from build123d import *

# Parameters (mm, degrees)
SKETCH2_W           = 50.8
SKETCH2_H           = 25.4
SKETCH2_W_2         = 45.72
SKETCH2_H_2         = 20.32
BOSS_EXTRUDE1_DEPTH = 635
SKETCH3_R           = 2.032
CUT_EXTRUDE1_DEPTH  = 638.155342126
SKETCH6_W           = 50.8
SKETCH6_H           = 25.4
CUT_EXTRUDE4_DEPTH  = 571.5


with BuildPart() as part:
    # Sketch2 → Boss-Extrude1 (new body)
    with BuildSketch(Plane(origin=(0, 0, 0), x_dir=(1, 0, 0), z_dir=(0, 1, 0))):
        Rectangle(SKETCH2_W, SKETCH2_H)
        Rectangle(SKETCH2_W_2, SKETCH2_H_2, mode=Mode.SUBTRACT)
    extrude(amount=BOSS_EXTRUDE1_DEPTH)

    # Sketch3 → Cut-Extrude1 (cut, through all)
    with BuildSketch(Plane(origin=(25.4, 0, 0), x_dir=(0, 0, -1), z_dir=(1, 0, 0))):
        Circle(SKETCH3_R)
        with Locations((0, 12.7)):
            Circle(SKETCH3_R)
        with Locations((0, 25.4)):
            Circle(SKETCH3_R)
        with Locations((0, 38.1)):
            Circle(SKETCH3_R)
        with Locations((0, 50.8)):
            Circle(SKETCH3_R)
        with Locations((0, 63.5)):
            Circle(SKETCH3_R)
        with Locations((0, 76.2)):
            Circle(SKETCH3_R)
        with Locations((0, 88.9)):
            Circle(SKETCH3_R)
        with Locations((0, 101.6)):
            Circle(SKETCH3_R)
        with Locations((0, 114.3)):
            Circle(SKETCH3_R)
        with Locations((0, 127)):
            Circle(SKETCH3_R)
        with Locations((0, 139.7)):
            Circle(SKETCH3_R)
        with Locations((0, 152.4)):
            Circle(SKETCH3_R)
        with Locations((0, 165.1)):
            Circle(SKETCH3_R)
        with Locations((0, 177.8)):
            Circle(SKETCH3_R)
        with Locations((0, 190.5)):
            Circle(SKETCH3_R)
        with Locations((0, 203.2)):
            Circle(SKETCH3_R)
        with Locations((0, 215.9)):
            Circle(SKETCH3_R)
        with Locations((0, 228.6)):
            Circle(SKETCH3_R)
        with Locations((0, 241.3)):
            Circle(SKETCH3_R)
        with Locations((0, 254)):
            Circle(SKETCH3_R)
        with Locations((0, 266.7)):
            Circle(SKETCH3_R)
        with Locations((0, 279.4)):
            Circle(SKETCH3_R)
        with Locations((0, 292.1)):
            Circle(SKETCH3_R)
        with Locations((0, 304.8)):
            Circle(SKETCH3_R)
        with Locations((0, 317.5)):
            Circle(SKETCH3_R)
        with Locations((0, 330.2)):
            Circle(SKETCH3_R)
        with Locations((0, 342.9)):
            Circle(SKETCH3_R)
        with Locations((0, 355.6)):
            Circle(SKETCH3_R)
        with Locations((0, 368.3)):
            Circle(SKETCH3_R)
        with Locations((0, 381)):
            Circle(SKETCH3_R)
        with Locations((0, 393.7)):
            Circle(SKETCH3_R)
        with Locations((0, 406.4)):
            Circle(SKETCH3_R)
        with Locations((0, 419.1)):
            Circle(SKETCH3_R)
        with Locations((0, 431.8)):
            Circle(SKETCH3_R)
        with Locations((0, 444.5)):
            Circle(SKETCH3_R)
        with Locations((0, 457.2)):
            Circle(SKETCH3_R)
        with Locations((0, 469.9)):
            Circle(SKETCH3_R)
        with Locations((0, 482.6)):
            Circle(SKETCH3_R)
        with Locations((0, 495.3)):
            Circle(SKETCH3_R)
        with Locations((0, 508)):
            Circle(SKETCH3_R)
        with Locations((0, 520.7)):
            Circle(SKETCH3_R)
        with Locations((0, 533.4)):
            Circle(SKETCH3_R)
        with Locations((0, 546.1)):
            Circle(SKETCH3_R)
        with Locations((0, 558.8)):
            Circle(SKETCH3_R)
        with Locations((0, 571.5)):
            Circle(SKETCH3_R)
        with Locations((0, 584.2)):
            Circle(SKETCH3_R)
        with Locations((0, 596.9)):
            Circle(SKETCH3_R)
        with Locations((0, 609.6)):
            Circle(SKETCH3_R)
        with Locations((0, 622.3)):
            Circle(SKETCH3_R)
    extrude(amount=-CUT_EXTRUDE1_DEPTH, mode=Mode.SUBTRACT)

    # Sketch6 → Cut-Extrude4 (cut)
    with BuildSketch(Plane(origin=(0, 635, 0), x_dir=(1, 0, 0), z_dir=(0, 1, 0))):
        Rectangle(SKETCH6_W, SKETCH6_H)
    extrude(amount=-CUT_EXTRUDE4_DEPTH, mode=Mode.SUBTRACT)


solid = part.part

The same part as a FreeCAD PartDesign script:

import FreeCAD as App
import Part
import Sketcher

V = App.Vector
Q = App.Units.Quantity


def add_polygon(sketch, points):
    """Adds a closed chain of lines whose ends are joined by coincident constraints."""
    first, n = sketch.GeometryCount, len(points)
    for a, b in zip(points, points[1:] + points[:1]):
        sketch.addGeometry(Part.LineSegment(App.Vector(*a, 0), App.Vector(*b, 0)), False)
    for i in range(n):
        sketch.addConstraint(Sketcher.Constraint("Coincident", first + i, 2, first + (i + 1) % n, 1))

doc = App.newDocument("Part")
body = doc.addObject("PartDesign::Body", "Body")

sketch1 = body.newObject("Sketcher::SketchObject", "Sketch")
sketch1.AttachmentSupport = (doc.getObject("XZ_Plane"), [""])
sketch1.MapMode = "FlatFace"
add_polygon(sketch1, [(-25, -13), (-25, 13), (25, 13), (25, -13)])
add_polygon(sketch1, [(23, 10), (-23, 10), (-23, -10), (23, -10)])
sketch1.addConstraint([
    Sketcher.Constraint("Vertical", 0),
    Sketcher.Constraint("Horizontal", 1),
    Sketcher.Constraint("Vertical", 2),
    Sketcher.Constraint("Horizontal", 3),
    Sketcher.Constraint("Horizontal", 4),
    Sketcher.Constraint("Vertical", 5),
    Sketcher.Constraint("Horizontal", 6),
    Sketcher.Constraint("Vertical", 7),
    Sketcher.Constraint("Symmetric", 0, 2, 2, 2, -1, 1),
    Sketcher.Constraint("Symmetric", 4, 2, 6, 2, -1, 1),
    Sketcher.Constraint("DistanceX", 1, 1, 1, 2, Q("2 in")),
    Sketcher.Constraint("DistanceY", 0, 1, 0, 2, Q("1 in")),
    Sketcher.Constraint("DistanceX", 4, 2, 4, 1, Q("1.8 in")),
    Sketcher.Constraint("DistanceY", 5, 2, 5, 1, Q("0.8 in")),
])
pad1 = body.newObject("PartDesign::Pad", "Pad")
pad1.Profile = sketch1
pad1.Length = Q("25 in")
pad1.Reversed = True

sketch2 = body.newObject("Sketcher::SketchObject", "Sketch001")
sketch2.AttachmentSupport = (doc.getObject("YZ_Plane"), [""])
sketch2.MapMode = "FlatFace"
sketch2.AttachmentOffset = App.Placement(V(0, 0, 1 * 25.4), App.Rotation())
sketch2.addGeometry([
    Part.Circle(V(0, 0, 0), V(0, 0, 1), 2),
    Part.Circle(V(12.7, 0, 0), V(0, 0, 1), 2),
    Part.Circle(V(25.4, 0, 0), V(0, 0, 1), 2),
    Part.Circle(V(38.1, 0, 0), V(0, 0, 1), 2),
    Part.Circle(V(50.8, 0, 0), V(0, 0, 1), 2),
    Part.Circle(V(63.5, 0, 0), V(0, 0, 1), 2),
    Part.Circle(V(76.2, 0, 0), V(0, 0, 1), 2),
    Part.Circle(V(88.9, 0, 0), V(0, 0, 1), 2),
    Part.Circle(V(101.6, 0, 0), V(0, 0, 1), 2),
    Part.Circle(V(114.3, 0, 0), V(0, 0, 1), 2),
    Part.Circle(V(127, 0, 0), V(0, 0, 1), 2),
    Part.Circle(V(139.7, 0, 0), V(0, 0, 1), 2),
    Part.Circle(V(152.4, 0, 0), V(0, 0, 1), 2),
    Part.Circle(V(165.1, 0, 0), V(0, 0, 1), 2),
    Part.Circle(V(177.8, 0, 0), V(0, 0, 1), 2),
    Part.Circle(V(190.5, 0, 0), V(0, 0, 1), 2),
    Part.Circle(V(203.2, 0, 0), V(0, 0, 1), 2),
    Part.Circle(V(215.9, 0, 0), V(0, 0, 1), 2),
    Part.Circle(V(228.6, 0, 0), V(0, 0, 1), 2),
    Part.Circle(V(241.3, 0, 0), V(0, 0, 1), 2),
    Part.Circle(V(254, 0, 0), V(0, 0, 1), 2),
    Part.Circle(V(266.7, 0, 0), V(0, 0, 1), 2),
    Part.Circle(V(279.4, 0, 0), V(0, 0, 1), 2),
    Part.Circle(V(292.1, 0, 0), V(0, 0, 1), 2),
    Part.Circle(V(304.8, 0, 0), V(0, 0, 1), 2),
    Part.Circle(V(317.5, 0, 0), V(0, 0, 1), 2),
    Part.Circle(V(330.2, 0, 0), V(0, 0, 1), 2),
    Part.Circle(V(342.9, 0, 0), V(0, 0, 1), 2),
    Part.Circle(V(355.6, 0, 0), V(0, 0, 1), 2),
    Part.Circle(V(368.3, 0, 0), V(0, 0, 1), 2),
    Part.Circle(V(381, 0, 0), V(0, 0, 1), 2),
    Part.Circle(V(393.7, 0, 0), V(0, 0, 1), 2),
    Part.Circle(V(406.4, 0, 0), V(0, 0, 1), 2),
    Part.Circle(V(419.1, 0, 0), V(0, 0, 1), 2),
    Part.Circle(V(431.8, 0, 0), V(0, 0, 1), 2),
    Part.Circle(V(444.5, 0, 0), V(0, 0, 1), 2),
    Part.Circle(V(457.2, 0, 0), V(0, 0, 1), 2),
    Part.Circle(V(469.9, 0, 0), V(0, 0, 1), 2),
    Part.Circle(V(482.6, 0, 0), V(0, 0, 1), 2),
    Part.Circle(V(495.3, 0, 0), V(0, 0, 1), 2),
    Part.Circle(V(508, 0, 0), V(0, 0, 1), 2),
    Part.Circle(V(520.7, 0, 0), V(0, 0, 1), 2),
    Part.Circle(V(533.4, 0, 0), V(0, 0, 1), 2),
    Part.Circle(V(546.1, 0, 0), V(0, 0, 1), 2),
    Part.Circle(V(558.8, 0, 0), V(0, 0, 1), 2),
    Part.Circle(V(571.5, 0, 0), V(0, 0, 1), 2),
    Part.Circle(V(584.2, 0, 0), V(0, 0, 1), 2),
    Part.Circle(V(596.9, 0, 0), V(0, 0, 1), 2),
    Part.Circle(V(609.6, 0, 0), V(0, 0, 1), 2),
    Part.Circle(V(622.3, 0, 0), V(0, 0, 1), 2),
], False)
sketch2.addConstraint([
    Sketcher.Constraint("Coincident", 0, 3, -1, 1),
    Sketcher.Constraint("Equal", 0, 1),
    Sketcher.Constraint("Equal", 1, 2),
    Sketcher.Constraint("Equal", 2, 3),
    Sketcher.Constraint("Equal", 3, 4),
    Sketcher.Constraint("Equal", 4, 5),
    Sketcher.Constraint("Equal", 5, 6),
    Sketcher.Constraint("Equal", 6, 7),
    Sketcher.Constraint("Equal", 7, 8),
    Sketcher.Constraint("Equal", 8, 9),
    Sketcher.Constraint("Equal", 9, 10),
    Sketcher.Constraint("Equal", 10, 11),
    Sketcher.Constraint("Equal", 11, 12),
    Sketcher.Constraint("Equal", 12, 13),
    Sketcher.Constraint("Equal", 13, 14),
    Sketcher.Constraint("Equal", 14, 15),
    Sketcher.Constraint("Equal", 15, 16),
    Sketcher.Constraint("Equal", 16, 17),
    Sketcher.Constraint("Equal", 17, 18),
    Sketcher.Constraint("Equal", 18, 19),
    Sketcher.Constraint("Equal", 19, 20),
    Sketcher.Constraint("Equal", 20, 21),
    Sketcher.Constraint("Equal", 21, 22),
    Sketcher.Constraint("Equal", 22, 23),
    Sketcher.Constraint("Equal", 23, 24),
    Sketcher.Constraint("Equal", 24, 25),
    Sketcher.Constraint("Equal", 25, 26),
    Sketcher.Constraint("Equal", 26, 27),
    Sketcher.Constraint("Equal", 27, 28),
    Sketcher.Constraint("Equal", 28, 29),
    Sketcher.Constraint("Equal", 29, 30),
    Sketcher.Constraint("Equal", 30, 31),
    Sketcher.Constraint("Equal", 31, 32),
    Sketcher.Constraint("Equal", 32, 33),
    Sketcher.Constraint("Equal", 33, 34),
    Sketcher.Constraint("Equal", 34, 35),
    Sketcher.Constraint("Equal", 35, 36),
    Sketcher.Constraint("Equal", 36, 37),
    Sketcher.Constraint("Equal", 37, 38),
    Sketcher.Constraint("Equal", 38, 39),
    Sketcher.Constraint("Equal", 39, 40),
    Sketcher.Constraint("Equal", 40, 41),
    Sketcher.Constraint("Equal", 41, 42),
    Sketcher.Constraint("Equal", 42, 43),
    Sketcher.Constraint("Equal", 43, 44),
    Sketcher.Constraint("Equal", 44, 45),
    Sketcher.Constraint("Equal", 45, 46),
    Sketcher.Constraint("Equal", 46, 47),
    Sketcher.Constraint("Equal", 47, 48),
    Sketcher.Constraint("Equal", 48, 49),
    Sketcher.Constraint("PointOnObject", 1, 3, -1),
    Sketcher.Constraint("PointOnObject", 2, 3, -1),
    Sketcher.Constraint("PointOnObject", 3, 3, -1),
    Sketcher.Constraint("PointOnObject", 4, 3, -1),
    Sketcher.Constraint("PointOnObject", 5, 3, -1),
    Sketcher.Constraint("PointOnObject", 6, 3, -1),
    Sketcher.Constraint("PointOnObject", 7, 3, -1),
    Sketcher.Constraint("PointOnObject", 8, 3, -1),
    Sketcher.Constraint("PointOnObject", 9, 3, -1),
    Sketcher.Constraint("PointOnObject", 10, 3, -1),
    Sketcher.Constraint("PointOnObject", 11, 3, -1),
    Sketcher.Constraint("PointOnObject", 12, 3, -1),
    Sketcher.Constraint("PointOnObject", 13, 3, -1),
    Sketcher.Constraint("PointOnObject", 14, 3, -1),
    Sketcher.Constraint("PointOnObject", 15, 3, -1),
    Sketcher.Constraint("PointOnObject", 16, 3, -1),
    Sketcher.Constraint("PointOnObject", 17, 3, -1),
    Sketcher.Constraint("PointOnObject", 18, 3, -1),
    Sketcher.Constraint("PointOnObject", 19, 3, -1),
    Sketcher.Constraint("PointOnObject", 20, 3, -1),
    Sketcher.Constraint("PointOnObject", 21, 3, -1),
    Sketcher.Constraint("PointOnObject", 22, 3, -1),
    Sketcher.Constraint("PointOnObject", 23, 3, -1),
    Sketcher.Constraint("PointOnObject", 24, 3, -1),
    Sketcher.Constraint("PointOnObject", 25, 3, -1),
    Sketcher.Constraint("PointOnObject", 26, 3, -1),
    Sketcher.Constraint("PointOnObject", 27, 3, -1),
    Sketcher.Constraint("PointOnObject", 28, 3, -1),
    Sketcher.Constraint("PointOnObject", 29, 3, -1),
    Sketcher.Constraint("PointOnObject", 30, 3, -1),
    Sketcher.Constraint("PointOnObject", 31, 3, -1),
    Sketcher.Constraint("PointOnObject", 32, 3, -1),
    Sketcher.Constraint("PointOnObject", 33, 3, -1),
    Sketcher.Constraint("PointOnObject", 34, 3, -1),
    Sketcher.Constraint("PointOnObject", 35, 3, -1),
    Sketcher.Constraint("PointOnObject", 36, 3, -1),
    Sketcher.Constraint("PointOnObject", 37, 3, -1),
    Sketcher.Constraint("PointOnObject", 38, 3, -1),
    Sketcher.Constraint("PointOnObject", 39, 3, -1),
    Sketcher.Constraint("PointOnObject", 40, 3, -1),
    Sketcher.Constraint("PointOnObject", 41, 3, -1),
    Sketcher.Constraint("PointOnObject", 42, 3, -1),
    Sketcher.Constraint("PointOnObject", 43, 3, -1),
    Sketcher.Constraint("PointOnObject", 44, 3, -1),
    Sketcher.Constraint("PointOnObject", 45, 3, -1),
    Sketcher.Constraint("PointOnObject", 46, 3, -1),
    Sketcher.Constraint("PointOnObject", 47, 3, -1),
    Sketcher.Constraint("PointOnObject", 48, 3, -1),
    Sketcher.Constraint("PointOnObject", 49, 3, -1),
    Sketcher.Constraint("Diameter", 0, Q("0.16 in")),
    Sketcher.Constraint("DistanceX", -1, 1, 2, 3, Q("1 in")),
    Sketcher.Constraint("DistanceX", -1, 1, 4, 3, Q("2 in")),
    Sketcher.Constraint("DistanceX", -1, 1, 6, 3, Q("3 in")),
    Sketcher.Constraint("DistanceX", -1, 1, 8, 3, Q("4 in")),
    Sketcher.Constraint("DistanceX", -1, 1, 10, 3, Q("5 in")),
    Sketcher.Constraint("DistanceX", -1, 1, 12, 3, Q("6 in")),
    Sketcher.Constraint("DistanceX", -1, 1, 14, 3, Q("7 in")),
    Sketcher.Constraint("DistanceX", -1, 1, 16, 3, Q("8 in")),
    Sketcher.Constraint("DistanceX", -1, 1, 18, 3, Q("9 in")),
    Sketcher.Constraint("DistanceX", -1, 1, 20, 3, Q("10 in")),
    Sketcher.Constraint("DistanceX", -1, 1, 22, 3, Q("11 in")),
    Sketcher.Constraint("DistanceX", -1, 1, 24, 3, Q("12 in")),
    Sketcher.Constraint("DistanceX", -1, 1, 26, 3, Q("13 in")),
    Sketcher.Constraint("DistanceX", -1, 1, 28, 3, Q("14 in")),
    Sketcher.Constraint("DistanceX", -1, 1, 30, 3, Q("15 in")),
    Sketcher.Constraint("DistanceX", -1, 1, 32, 3, Q("16 in")),
    Sketcher.Constraint("DistanceX", -1, 1, 34, 3, Q("17 in")),
    Sketcher.Constraint("DistanceX", -1, 1, 36, 3, Q("18 in")),
    Sketcher.Constraint("DistanceX", -1, 1, 38, 3, Q("19 in")),
    Sketcher.Constraint("DistanceX", -1, 1, 40, 3, Q("20 in")),
    Sketcher.Constraint("DistanceX", -1, 1, 42, 3, Q("21 in")),
    Sketcher.Constraint("DistanceX", -1, 1, 44, 3, Q("22 in")),
    Sketcher.Constraint("DistanceX", -1, 1, 46, 3, Q("23 in")),
    Sketcher.Constraint("DistanceX", -1, 1, 48, 3, Q("24 in")),
    Sketcher.Constraint("DistanceX", 1, 3, 3, 3, Q("1 in")),
    Sketcher.Constraint("DistanceX", 3, 3, 5, 3, Q("1 in")),
    Sketcher.Constraint("DistanceX", 5, 3, 7, 3, Q("1 in")),
    Sketcher.Constraint("DistanceX", 7, 3, 9, 3, Q("1 in")),
    Sketcher.Constraint("DistanceX", 9, 3, 11, 3, Q("1 in")),
    Sketcher.Constraint("DistanceX", 11, 3, 13, 3, Q("1 in")),
    Sketcher.Constraint("DistanceX", 13, 3, 15, 3, Q("1 in")),
    Sketcher.Constraint("DistanceX", 15, 3, 17, 3, Q("1 in")),
    Sketcher.Constraint("DistanceX", 17, 3, 19, 3, Q("1 in")),
    Sketcher.Constraint("DistanceX", 19, 3, 21, 3, Q("1 in")),
    Sketcher.Constraint("DistanceX", 21, 3, 23, 3, Q("1 in")),
    Sketcher.Constraint("DistanceX", 23, 3, 25, 3, Q("1 in")),
    Sketcher.Constraint("DistanceX", 25, 3, 27, 3, Q("1 in")),
    Sketcher.Constraint("DistanceX", 27, 3, 29, 3, Q("1 in")),
    Sketcher.Constraint("DistanceX", 29, 3, 31, 3, Q("1 in")),
    Sketcher.Constraint("DistanceX", 31, 3, 33, 3, Q("1 in")),
    Sketcher.Constraint("DistanceX", 33, 3, 35, 3, Q("1 in")),
    Sketcher.Constraint("DistanceX", 35, 3, 37, 3, Q("1 in")),
    Sketcher.Constraint("DistanceX", 37, 3, 39, 3, Q("1 in")),
    Sketcher.Constraint("DistanceX", 39, 3, 41, 3, Q("1 in")),
    Sketcher.Constraint("DistanceX", 41, 3, 43, 3, Q("1 in")),
    Sketcher.Constraint("DistanceX", 43, 3, 45, 3, Q("1 in")),
    Sketcher.Constraint("DistanceX", 45, 3, 47, 3, Q("1 in")),
    Sketcher.Constraint("DistanceX", 47, 3, 49, 3, Q("1 in")),
    Sketcher.Constraint("DistanceX", -1, 1, 1, 3, Q("0.5 in")),
])
pocket1 = body.newObject("PartDesign::Pocket", "Pocket")
pocket1.Profile = sketch2
pocket1.Type = "ThroughAll"

sketch3 = body.newObject("Sketcher::SketchObject", "Sketch002")
sketch3.AttachmentSupport = (doc.getObject("XZ_Plane"), [""])
sketch3.MapMode = "FlatFace"
sketch3.AttachmentOffset = App.Placement(V(0, 0, -25 * 25.4), App.Rotation())
add_polygon(sketch3, [(-25, -13), (-25, 13), (25, 13), (25, -13)])
sketch3.addConstraint([
    Sketcher.Constraint("Vertical", 0),
    Sketcher.Constraint("Horizontal", 1),
    Sketcher.Constraint("Vertical", 2),
    Sketcher.Constraint("Horizontal", 3),
    Sketcher.Constraint("Symmetric", 0, 2, 2, 2, -1, 1),
    Sketcher.Constraint("DistanceX", 1, 1, 1, 2, Q("2 in")),
    Sketcher.Constraint("DistanceY", 0, 1, 0, 2, Q("1 in")),
])
pocket2 = body.newObject("PartDesign::Pocket", "Pocket001")
pocket2.Profile = sketch3
pocket2.Length = Q("22.5 in")
pocket2.Reversed = True

doc.recompute()
